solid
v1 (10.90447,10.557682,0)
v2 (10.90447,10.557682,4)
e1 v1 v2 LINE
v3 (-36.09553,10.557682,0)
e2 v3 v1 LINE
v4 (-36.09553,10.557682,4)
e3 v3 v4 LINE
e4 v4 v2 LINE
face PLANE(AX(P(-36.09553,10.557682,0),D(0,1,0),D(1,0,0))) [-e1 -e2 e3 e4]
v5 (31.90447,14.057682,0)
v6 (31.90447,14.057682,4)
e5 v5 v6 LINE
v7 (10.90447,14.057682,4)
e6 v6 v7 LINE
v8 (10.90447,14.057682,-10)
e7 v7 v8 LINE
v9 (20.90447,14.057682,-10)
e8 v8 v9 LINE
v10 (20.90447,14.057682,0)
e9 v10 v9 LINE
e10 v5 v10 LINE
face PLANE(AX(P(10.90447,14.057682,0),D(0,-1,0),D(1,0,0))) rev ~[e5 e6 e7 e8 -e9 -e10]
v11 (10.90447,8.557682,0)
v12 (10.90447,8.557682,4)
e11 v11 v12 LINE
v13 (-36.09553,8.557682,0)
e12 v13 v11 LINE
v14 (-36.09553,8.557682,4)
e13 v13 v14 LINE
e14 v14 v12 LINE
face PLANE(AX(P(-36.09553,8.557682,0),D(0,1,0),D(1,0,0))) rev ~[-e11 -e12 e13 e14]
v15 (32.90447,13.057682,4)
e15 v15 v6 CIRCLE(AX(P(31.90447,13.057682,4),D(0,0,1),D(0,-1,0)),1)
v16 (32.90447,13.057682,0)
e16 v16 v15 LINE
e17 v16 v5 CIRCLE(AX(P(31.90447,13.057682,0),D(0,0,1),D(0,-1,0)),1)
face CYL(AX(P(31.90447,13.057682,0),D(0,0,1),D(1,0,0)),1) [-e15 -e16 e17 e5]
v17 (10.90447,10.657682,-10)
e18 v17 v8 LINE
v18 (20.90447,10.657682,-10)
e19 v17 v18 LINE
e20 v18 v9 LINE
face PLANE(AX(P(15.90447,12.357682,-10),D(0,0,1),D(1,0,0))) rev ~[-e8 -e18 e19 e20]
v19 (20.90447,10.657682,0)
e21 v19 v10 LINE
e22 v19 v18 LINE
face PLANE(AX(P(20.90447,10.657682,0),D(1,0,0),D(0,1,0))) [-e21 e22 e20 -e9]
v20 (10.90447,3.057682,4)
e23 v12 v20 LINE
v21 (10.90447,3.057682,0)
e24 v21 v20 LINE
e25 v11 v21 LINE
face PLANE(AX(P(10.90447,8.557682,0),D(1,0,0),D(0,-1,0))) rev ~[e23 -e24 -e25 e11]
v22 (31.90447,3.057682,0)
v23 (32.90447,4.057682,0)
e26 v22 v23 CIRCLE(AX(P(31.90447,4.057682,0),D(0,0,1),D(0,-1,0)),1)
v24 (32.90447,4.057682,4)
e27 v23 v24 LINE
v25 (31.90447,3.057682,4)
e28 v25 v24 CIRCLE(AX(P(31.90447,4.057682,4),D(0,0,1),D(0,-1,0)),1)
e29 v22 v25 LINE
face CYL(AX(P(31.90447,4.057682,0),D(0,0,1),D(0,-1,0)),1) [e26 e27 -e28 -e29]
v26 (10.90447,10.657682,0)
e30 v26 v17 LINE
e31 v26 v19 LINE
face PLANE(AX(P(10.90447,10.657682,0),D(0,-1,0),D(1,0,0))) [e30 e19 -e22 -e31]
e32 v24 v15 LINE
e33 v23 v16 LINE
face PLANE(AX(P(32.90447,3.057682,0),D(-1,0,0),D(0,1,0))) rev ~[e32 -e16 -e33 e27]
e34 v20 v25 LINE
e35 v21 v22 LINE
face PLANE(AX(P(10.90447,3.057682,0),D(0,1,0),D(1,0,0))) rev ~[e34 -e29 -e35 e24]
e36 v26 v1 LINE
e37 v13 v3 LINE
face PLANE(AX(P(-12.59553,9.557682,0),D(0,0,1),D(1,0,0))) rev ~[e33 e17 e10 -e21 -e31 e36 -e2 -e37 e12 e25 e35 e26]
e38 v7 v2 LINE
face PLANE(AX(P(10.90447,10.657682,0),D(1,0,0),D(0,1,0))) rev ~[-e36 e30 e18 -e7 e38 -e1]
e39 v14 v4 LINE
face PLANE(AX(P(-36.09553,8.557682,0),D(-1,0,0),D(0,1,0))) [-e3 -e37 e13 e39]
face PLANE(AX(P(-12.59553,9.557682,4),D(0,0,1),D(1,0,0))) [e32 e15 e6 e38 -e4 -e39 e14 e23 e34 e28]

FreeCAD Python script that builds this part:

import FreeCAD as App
import Part
import Sketcher

V = App.Vector
Q = App.Units.Quantity


def edges_at(feature, points):
    """Names of the edges that pass closest to the given points."""
    edges = feature.Shape.Edges
    near = lambda p: min(range(len(edges)), key=lambda i: edges[i].distToShape(Part.Vertex(*p))[0])
    return sorted({f"Edge{near(p) + 1}" for p in points})

doc = App.newDocument("Part")
body = doc.addObject("PartDesign::Body", "Body")

sketch1 = body.newObject("Sketcher::SketchObject", "Sketch")
sketch1.AttachmentSupport = (doc.getObject("XY_Plane"), [""])
sketch1.MapMode = "FlatFace"
sketch1.addGeometry([
    Part.LineSegment(V(-36.09553, 10.557682, 0), V(-36.09553, 8.557682, 0)),
    Part.LineSegment(V(-36.09553, 8.557682, 0), V(10.90447, 8.557682, 0)),
    Part.LineSegment(V(10.90447, 8.557682, 0), V(10.90447, 3.057682, 0)),
    Part.LineSegment(V(10.90447, 3.057682, 0), V(32.90447, 3.057682, 0)),
    Part.LineSegment(V(32.90447, 3.057682, 0), V(32.90447, 14.057682, 0)),
    Part.LineSegment(V(32.90447, 14.057682, 0), V(10.90447, 14.057682, 0)),
    Part.LineSegment(V(10.90447, 14.057682, 0), V(10.90447, 10.557682, 0)),
    Part.LineSegment(V(10.90447, 10.557682, 0), V(-36.09553, 10.557682, 0)),
], False)
sketch1.addConstraint([
    Sketcher.Constraint("Coincident", 0, 2, 1, 1),
    Sketcher.Constraint("Coincident", 1, 2, 2, 1),
    Sketcher.Constraint("Coincident", 2, 2, 3, 1),
    Sketcher.Constraint("Coincident", 3, 2, 4, 1),
    Sketcher.Constraint("Coincident", 4, 2, 5, 1),
    Sketcher.Constraint("Coincident", 5, 2, 6, 1),
    Sketcher.Constraint("Coincident", 6, 2, 7, 1),
    Sketcher.Constraint("Coincident", 7, 2, 0, 1),
    Sketcher.Constraint("Vertical", 0),
    Sketcher.Constraint("Horizontal", 1),
    Sketcher.Constraint("Vertical", 2),
    Sketcher.Constraint("Horizontal", 3),
    Sketcher.Constraint("Vertical", 4),
    Sketcher.Constraint("Horizontal", 5),
    Sketcher.Constraint("Vertical", 6),
    Sketcher.Constraint("Horizontal", 7),
    Sketcher.Constraint("Vertical", 2, 2, 5, 2),
    Sketcher.Constraint("DistanceX", 1, 1, 1, 2, Q("47 mm")),
    Sketcher.Constraint("DistanceX", 3, 1, 3, 2, Q("22 mm")),
    Sketcher.Constraint("DistanceY", 0, 2, 0, 1, Q("2 mm")),
    Sketcher.Constraint("DistanceY", 4, 1, 4, 2, Q("11 mm")),
    Sketcher.Constraint("DistanceY", 2, 2, 2, 1, Q("5.5 mm")),
    Sketcher.Constraint("DistanceX", 0, 2, -1, 1, Q("36.09553 mm")),
    Sketcher.Constraint("DistanceY", -1, 1, 2, 2, Q("3.057682 mm")),
])
pad1 = body.newObject("PartDesign::Pad", "Pad")
pad1.Profile = sketch1
pad1.Length = 4

sketch2 = body.newObject("Sketcher::SketchObject", "Sketch001")
sketch2.AttachmentSupport = (doc.getObject("XY_Plane"), [""])
sketch2.MapMode = "FlatFace"
sketch2.addGeometry([
    Part.LineSegment(V(10.90447, 14.057682, 0), V(10.90447, 10.657682, 0)),
    Part.LineSegment(V(10.90447, 10.657682, 0), V(20.90447, 10.657682, 0)),
    Part.LineSegment(V(20.90447, 10.657682, 0), V(20.90447, 14.057682, 0)),
    Part.LineSegment(V(20.90447, 14.057682, 0), V(10.90447, 14.057682, 0)),
], False)
sketch2.addConstraint([
    Sketcher.Constraint("Coincident", 0, 2, 1, 1),
    Sketcher.Constraint("Coincident", 1, 2, 2, 1),
    Sketcher.Constraint("Coincident", 2, 2, 3, 1),
    Sketcher.Constraint("Coincident", 3, 2, 0, 1),
    Sketcher.Constraint("Vertical", 0),
    Sketcher.Constraint("Horizontal", 1),
    Sketcher.Constraint("Vertical", 2),
    Sketcher.Constraint("Horizontal", 3),
    Sketcher.Constraint("DistanceX", 1, 1, 1, 2, Q("10 mm")),
    Sketcher.Constraint("DistanceY", 0, 2, 0, 1, Q("3.4 mm")),
    Sketcher.Constraint("DistanceX", -1, 1, 0, 2, Q("10.90447 mm")),
    Sketcher.Constraint("DistanceY", -1, 1, 0, 2, Q("10.657682 mm")),
])
pad2 = body.newObject("PartDesign::Pad", "Pad001")
pad2.Profile = sketch2
pad2.Length = 10
pad2.Reversed = True
doc.recompute()

fillet = body.newObject("PartDesign::Fillet", "Fillet")
fillet.Base = (pad2, edges_at(pad2, [(32.904, 3.058, 2), (32.904, 14.058, 2)]))
fillet.Radius = 1

doc.recompute()
